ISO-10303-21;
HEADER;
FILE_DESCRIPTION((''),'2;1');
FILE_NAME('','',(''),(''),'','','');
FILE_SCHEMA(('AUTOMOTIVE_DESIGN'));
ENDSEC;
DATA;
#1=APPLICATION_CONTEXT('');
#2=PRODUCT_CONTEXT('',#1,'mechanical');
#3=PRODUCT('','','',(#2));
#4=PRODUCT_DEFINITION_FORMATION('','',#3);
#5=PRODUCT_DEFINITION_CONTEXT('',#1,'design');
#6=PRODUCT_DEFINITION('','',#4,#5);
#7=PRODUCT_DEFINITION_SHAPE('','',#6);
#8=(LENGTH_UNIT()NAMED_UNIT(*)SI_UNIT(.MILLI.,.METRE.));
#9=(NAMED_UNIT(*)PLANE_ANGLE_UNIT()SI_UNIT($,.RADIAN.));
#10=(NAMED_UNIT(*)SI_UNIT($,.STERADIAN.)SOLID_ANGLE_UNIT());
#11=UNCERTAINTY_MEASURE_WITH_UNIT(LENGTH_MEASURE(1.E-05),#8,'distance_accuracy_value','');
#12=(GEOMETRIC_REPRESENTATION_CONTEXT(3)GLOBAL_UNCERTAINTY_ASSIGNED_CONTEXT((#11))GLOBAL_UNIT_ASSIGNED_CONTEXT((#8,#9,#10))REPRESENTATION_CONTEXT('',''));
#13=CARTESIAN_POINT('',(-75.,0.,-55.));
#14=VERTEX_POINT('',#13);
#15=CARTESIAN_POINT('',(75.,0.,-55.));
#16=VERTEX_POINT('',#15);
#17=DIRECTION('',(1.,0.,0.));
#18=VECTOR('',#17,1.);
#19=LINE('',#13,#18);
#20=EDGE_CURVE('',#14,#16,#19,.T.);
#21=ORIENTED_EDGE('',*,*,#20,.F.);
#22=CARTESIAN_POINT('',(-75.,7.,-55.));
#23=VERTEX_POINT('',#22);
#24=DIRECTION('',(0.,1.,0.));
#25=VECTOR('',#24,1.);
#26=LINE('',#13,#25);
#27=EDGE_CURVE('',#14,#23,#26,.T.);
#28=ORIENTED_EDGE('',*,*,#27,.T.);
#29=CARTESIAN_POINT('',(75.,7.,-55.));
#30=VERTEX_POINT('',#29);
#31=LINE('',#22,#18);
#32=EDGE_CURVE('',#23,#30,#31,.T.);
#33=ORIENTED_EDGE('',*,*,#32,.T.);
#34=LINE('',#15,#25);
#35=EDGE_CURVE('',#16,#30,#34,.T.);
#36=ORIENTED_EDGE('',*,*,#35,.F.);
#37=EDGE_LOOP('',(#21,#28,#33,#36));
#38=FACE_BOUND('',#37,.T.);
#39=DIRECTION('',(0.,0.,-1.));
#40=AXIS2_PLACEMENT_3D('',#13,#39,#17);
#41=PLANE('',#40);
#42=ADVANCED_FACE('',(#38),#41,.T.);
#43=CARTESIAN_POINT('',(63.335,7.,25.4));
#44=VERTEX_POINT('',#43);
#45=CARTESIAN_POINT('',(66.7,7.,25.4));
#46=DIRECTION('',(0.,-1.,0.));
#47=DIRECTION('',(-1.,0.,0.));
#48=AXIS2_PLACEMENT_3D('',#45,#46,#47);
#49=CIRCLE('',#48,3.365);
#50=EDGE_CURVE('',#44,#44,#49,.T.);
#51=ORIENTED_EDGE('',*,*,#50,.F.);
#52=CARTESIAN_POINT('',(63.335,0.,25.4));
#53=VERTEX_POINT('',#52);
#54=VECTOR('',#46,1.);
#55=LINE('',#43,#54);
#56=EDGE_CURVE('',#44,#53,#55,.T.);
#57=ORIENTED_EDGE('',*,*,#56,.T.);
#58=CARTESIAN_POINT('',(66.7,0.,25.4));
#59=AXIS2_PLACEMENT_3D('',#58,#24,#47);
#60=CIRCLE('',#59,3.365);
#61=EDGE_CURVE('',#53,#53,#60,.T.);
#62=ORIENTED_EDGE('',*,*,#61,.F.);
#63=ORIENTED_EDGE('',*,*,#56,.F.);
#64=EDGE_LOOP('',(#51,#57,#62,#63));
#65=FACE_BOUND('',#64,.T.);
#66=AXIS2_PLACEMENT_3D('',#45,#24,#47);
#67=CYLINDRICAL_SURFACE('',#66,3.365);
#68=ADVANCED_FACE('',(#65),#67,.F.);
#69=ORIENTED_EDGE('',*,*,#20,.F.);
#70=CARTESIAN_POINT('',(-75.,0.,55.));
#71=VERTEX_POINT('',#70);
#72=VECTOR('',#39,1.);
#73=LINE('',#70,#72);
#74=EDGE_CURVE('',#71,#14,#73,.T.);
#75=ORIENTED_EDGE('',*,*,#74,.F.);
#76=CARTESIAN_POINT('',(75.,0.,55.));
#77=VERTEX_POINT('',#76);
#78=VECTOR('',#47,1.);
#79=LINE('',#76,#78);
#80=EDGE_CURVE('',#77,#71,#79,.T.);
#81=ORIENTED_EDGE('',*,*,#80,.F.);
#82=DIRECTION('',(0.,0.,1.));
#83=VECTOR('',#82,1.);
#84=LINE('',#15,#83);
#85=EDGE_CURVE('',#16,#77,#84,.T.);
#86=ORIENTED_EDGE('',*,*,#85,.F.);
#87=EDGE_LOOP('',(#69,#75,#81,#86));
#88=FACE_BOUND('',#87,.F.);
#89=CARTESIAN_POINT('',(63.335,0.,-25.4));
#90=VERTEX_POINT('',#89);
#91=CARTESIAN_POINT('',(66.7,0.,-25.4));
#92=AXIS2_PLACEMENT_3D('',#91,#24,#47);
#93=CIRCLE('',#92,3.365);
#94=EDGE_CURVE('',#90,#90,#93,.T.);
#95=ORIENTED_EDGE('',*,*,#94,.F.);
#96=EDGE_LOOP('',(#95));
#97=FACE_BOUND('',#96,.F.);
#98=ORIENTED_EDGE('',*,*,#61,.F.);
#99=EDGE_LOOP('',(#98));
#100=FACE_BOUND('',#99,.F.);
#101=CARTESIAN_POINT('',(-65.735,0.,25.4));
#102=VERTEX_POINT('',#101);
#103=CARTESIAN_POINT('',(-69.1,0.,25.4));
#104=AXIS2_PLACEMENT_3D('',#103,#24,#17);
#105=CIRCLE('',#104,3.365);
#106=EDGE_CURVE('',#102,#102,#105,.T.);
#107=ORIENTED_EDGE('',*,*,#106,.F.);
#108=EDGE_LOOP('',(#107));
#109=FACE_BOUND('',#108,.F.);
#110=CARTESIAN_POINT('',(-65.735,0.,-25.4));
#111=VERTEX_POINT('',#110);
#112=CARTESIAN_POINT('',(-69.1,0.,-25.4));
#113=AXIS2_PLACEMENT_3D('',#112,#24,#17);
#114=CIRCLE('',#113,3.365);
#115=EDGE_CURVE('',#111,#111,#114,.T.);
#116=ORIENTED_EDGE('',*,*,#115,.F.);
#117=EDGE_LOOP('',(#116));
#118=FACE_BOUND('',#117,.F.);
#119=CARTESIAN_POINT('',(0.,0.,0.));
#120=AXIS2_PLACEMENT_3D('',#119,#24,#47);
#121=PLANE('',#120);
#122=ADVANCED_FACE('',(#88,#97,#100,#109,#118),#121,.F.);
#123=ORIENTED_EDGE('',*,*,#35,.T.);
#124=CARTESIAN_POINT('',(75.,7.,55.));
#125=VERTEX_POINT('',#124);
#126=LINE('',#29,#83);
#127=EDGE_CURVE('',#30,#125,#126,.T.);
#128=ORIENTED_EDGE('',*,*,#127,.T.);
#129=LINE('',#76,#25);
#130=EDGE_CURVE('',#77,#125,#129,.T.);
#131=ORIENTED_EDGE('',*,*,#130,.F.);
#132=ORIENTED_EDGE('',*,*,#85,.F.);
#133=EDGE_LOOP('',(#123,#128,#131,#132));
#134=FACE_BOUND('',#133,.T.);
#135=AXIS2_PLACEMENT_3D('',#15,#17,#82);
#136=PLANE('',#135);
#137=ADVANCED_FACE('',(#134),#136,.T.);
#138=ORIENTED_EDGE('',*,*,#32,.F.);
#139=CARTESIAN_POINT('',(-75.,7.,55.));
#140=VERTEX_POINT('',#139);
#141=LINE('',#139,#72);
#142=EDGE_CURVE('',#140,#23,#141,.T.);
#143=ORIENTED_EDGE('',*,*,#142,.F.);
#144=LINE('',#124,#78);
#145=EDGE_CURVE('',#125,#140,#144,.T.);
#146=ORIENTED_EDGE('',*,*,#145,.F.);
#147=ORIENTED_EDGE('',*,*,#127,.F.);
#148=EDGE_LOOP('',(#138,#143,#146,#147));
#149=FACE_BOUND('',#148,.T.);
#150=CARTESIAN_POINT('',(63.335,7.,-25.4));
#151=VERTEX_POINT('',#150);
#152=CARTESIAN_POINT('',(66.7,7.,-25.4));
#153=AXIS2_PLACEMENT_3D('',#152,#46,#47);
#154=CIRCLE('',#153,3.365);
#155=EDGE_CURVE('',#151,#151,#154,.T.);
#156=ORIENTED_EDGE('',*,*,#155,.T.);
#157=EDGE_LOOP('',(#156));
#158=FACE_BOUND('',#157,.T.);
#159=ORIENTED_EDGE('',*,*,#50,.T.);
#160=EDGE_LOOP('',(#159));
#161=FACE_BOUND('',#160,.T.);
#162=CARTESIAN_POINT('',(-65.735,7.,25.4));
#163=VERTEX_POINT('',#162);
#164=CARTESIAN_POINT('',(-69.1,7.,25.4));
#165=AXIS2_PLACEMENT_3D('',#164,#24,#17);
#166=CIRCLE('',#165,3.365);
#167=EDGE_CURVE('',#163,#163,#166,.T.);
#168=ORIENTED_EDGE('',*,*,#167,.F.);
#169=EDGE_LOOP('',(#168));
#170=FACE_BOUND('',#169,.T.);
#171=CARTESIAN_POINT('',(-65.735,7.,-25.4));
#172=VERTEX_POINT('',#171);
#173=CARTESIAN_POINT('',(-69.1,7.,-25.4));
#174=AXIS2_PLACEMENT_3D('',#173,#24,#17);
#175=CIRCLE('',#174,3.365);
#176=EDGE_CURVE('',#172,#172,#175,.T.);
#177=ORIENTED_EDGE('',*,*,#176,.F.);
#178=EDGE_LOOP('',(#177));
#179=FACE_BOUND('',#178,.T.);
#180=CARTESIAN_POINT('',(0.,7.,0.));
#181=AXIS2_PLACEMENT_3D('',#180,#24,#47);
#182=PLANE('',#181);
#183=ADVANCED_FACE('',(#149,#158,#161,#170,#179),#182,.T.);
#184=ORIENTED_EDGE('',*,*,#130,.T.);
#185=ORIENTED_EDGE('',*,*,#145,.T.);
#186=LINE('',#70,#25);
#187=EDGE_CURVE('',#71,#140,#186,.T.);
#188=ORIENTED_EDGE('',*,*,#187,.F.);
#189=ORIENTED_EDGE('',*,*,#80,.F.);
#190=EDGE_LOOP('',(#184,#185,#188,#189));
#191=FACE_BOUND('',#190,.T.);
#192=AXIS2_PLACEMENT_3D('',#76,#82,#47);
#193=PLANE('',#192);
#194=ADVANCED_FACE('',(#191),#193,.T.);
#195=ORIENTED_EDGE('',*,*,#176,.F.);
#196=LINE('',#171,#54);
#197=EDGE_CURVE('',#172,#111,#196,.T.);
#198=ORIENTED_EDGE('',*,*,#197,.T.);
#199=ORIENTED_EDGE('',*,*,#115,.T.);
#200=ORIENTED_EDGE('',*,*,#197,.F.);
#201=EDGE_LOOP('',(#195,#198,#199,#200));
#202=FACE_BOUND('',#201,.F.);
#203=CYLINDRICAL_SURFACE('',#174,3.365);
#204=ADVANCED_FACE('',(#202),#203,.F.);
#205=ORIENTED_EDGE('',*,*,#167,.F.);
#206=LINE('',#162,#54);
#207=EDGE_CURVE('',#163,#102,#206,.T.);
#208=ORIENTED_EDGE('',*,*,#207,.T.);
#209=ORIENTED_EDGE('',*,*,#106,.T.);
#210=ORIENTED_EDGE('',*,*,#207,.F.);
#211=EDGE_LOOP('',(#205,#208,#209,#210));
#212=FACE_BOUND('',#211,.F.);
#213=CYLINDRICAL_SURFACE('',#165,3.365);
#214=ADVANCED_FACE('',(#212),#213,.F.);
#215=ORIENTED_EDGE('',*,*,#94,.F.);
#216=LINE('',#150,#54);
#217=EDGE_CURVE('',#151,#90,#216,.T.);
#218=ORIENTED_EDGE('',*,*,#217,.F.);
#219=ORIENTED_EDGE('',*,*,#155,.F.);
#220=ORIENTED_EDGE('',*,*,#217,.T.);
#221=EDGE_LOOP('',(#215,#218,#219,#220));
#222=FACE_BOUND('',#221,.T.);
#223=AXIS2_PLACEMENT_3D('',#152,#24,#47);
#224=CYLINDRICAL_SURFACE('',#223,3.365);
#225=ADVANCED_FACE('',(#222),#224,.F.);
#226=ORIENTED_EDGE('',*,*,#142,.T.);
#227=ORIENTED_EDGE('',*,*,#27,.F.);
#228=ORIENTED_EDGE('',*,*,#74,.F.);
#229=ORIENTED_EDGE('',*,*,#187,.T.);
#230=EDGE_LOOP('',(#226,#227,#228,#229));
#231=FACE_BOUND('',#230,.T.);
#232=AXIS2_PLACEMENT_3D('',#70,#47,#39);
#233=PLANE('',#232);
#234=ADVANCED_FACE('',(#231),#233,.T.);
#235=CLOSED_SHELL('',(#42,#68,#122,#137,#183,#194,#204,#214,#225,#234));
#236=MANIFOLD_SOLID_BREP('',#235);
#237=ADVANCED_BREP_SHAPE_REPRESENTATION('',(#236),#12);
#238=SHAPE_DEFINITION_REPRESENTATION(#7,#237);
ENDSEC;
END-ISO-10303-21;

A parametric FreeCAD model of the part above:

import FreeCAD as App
import Part
import Sketcher

V = App.Vector

doc = App.newDocument("Part")
body = doc.addObject("PartDesign::Body", "Body")

# Sketch on XZ plane
sketch1 = body.newObject("Sketcher::SketchObject", "Sketch")
sketch1.AttachmentSupport = (doc.getObject("XZ_Plane"), [""])
sketch1.MapMode = "FlatFace"
sketch1.addGeometry(Part.LineSegment(V(-75, 55, 0), V(75, 55, 0)), False)
sketch1.addGeometry(Part.LineSegment(V(75, 55, 0), V(75, -55, 0)), False)
sketch1.addGeometry(Part.LineSegment(V(75, -55, 0), V(-75, -55, 0)), False)
sketch1.addGeometry(Part.LineSegment(V(-75, -55, 0), V(-75, 55, 0)), False)
sketch1.addConstraint(Sketcher.Constraint("Coincident", 0, 2, 1, 1))
sketch1.addConstraint(Sketcher.Constraint("Coincident", 1, 2, 2, 1))
sketch1.addConstraint(Sketcher.Constraint("Coincident", 2, 2, 3, 1))
sketch1.addConstraint(Sketcher.Constraint("Coincident", 3, 2, 0, 1))
sketch1.addConstraint(Sketcher.Constraint("Horizontal", 0))
sketch1.addConstraint(Sketcher.Constraint("Vertical", 1))
sketch1.addConstraint(Sketcher.Constraint("Horizontal", 2))
sketch1.addConstraint(Sketcher.Constraint("Vertical", 3))
sketch1.addConstraint(Sketcher.Constraint("Symmetric", 0, 2, 2, 2, -1, 1))
sketch1.addConstraint(Sketcher.Constraint("DistanceX", 0, 1, 0, 2, 150.0))
sketch1.addConstraint(Sketcher.Constraint("DistanceY", 1, 2, 1, 1, 110.0))
pad1 = body.newObject("PartDesign::Pad", "Pad")
pad1.Profile = sketch1
pad1.Length = 7
pad1.Reversed = True

# Sketch on XZ plane
sketch2 = body.newObject("Sketcher::SketchObject", "Sketch001")
sketch2.AttachmentSupport = (doc.getObject("XZ_Plane"), [""])
sketch2.MapMode = "FlatFace"
sketch2.AttachmentOffset = App.Placement(V(0, 0, -7), App.Rotation())
sketch2.addGeometry(Part.Circle(V(-69.1, -25.4, 0), V(0, 0, 1), 3.365), False)
sketch2.addGeometry(Part.Circle(V(-69.1, 25.4, 0), V(0, 0, 1), 3.365), False)
sketch2.addConstraint(Sketcher.Constraint("Equal", 0, 1))
sketch2.addConstraint(Sketcher.Constraint("Symmetric", 0, 3, 1, 3, -1))
sketch2.addConstraint(Sketcher.Constraint("Diameter", 0, 6.73))
sketch2.addConstraint(Sketcher.Constraint("DistanceY", 0, 3, -1, 1, 25.4))
sketch2.addConstraint(Sketcher.Constraint("DistanceX", 0, 3, -1, 1, 69.1))
pocket1 = body.newObject("PartDesign::Pocket", "Pocket")
pocket1.Profile = sketch2
pocket1.Length = 10
pocket1.Reversed = True
doc.recompute()

datumplane = body.newObject("PartDesign::Plane", "DatumPlane")
datumplane.AttachmentSupport = (doc.getObject("YZ_Plane"), [""])
datumplane.MapMode = "FlatFace"
datumplane.AttachmentOffset = App.Placement(V(0, 0, -1.2), App.Rotation())
mirrored = body.newObject("PartDesign::Mirrored", "Mirrored")
mirrored.Originals = [pocket1]
mirrored.MirrorPlane = (datumplane, [""])
body.Tip = mirrored

doc.recompute()
